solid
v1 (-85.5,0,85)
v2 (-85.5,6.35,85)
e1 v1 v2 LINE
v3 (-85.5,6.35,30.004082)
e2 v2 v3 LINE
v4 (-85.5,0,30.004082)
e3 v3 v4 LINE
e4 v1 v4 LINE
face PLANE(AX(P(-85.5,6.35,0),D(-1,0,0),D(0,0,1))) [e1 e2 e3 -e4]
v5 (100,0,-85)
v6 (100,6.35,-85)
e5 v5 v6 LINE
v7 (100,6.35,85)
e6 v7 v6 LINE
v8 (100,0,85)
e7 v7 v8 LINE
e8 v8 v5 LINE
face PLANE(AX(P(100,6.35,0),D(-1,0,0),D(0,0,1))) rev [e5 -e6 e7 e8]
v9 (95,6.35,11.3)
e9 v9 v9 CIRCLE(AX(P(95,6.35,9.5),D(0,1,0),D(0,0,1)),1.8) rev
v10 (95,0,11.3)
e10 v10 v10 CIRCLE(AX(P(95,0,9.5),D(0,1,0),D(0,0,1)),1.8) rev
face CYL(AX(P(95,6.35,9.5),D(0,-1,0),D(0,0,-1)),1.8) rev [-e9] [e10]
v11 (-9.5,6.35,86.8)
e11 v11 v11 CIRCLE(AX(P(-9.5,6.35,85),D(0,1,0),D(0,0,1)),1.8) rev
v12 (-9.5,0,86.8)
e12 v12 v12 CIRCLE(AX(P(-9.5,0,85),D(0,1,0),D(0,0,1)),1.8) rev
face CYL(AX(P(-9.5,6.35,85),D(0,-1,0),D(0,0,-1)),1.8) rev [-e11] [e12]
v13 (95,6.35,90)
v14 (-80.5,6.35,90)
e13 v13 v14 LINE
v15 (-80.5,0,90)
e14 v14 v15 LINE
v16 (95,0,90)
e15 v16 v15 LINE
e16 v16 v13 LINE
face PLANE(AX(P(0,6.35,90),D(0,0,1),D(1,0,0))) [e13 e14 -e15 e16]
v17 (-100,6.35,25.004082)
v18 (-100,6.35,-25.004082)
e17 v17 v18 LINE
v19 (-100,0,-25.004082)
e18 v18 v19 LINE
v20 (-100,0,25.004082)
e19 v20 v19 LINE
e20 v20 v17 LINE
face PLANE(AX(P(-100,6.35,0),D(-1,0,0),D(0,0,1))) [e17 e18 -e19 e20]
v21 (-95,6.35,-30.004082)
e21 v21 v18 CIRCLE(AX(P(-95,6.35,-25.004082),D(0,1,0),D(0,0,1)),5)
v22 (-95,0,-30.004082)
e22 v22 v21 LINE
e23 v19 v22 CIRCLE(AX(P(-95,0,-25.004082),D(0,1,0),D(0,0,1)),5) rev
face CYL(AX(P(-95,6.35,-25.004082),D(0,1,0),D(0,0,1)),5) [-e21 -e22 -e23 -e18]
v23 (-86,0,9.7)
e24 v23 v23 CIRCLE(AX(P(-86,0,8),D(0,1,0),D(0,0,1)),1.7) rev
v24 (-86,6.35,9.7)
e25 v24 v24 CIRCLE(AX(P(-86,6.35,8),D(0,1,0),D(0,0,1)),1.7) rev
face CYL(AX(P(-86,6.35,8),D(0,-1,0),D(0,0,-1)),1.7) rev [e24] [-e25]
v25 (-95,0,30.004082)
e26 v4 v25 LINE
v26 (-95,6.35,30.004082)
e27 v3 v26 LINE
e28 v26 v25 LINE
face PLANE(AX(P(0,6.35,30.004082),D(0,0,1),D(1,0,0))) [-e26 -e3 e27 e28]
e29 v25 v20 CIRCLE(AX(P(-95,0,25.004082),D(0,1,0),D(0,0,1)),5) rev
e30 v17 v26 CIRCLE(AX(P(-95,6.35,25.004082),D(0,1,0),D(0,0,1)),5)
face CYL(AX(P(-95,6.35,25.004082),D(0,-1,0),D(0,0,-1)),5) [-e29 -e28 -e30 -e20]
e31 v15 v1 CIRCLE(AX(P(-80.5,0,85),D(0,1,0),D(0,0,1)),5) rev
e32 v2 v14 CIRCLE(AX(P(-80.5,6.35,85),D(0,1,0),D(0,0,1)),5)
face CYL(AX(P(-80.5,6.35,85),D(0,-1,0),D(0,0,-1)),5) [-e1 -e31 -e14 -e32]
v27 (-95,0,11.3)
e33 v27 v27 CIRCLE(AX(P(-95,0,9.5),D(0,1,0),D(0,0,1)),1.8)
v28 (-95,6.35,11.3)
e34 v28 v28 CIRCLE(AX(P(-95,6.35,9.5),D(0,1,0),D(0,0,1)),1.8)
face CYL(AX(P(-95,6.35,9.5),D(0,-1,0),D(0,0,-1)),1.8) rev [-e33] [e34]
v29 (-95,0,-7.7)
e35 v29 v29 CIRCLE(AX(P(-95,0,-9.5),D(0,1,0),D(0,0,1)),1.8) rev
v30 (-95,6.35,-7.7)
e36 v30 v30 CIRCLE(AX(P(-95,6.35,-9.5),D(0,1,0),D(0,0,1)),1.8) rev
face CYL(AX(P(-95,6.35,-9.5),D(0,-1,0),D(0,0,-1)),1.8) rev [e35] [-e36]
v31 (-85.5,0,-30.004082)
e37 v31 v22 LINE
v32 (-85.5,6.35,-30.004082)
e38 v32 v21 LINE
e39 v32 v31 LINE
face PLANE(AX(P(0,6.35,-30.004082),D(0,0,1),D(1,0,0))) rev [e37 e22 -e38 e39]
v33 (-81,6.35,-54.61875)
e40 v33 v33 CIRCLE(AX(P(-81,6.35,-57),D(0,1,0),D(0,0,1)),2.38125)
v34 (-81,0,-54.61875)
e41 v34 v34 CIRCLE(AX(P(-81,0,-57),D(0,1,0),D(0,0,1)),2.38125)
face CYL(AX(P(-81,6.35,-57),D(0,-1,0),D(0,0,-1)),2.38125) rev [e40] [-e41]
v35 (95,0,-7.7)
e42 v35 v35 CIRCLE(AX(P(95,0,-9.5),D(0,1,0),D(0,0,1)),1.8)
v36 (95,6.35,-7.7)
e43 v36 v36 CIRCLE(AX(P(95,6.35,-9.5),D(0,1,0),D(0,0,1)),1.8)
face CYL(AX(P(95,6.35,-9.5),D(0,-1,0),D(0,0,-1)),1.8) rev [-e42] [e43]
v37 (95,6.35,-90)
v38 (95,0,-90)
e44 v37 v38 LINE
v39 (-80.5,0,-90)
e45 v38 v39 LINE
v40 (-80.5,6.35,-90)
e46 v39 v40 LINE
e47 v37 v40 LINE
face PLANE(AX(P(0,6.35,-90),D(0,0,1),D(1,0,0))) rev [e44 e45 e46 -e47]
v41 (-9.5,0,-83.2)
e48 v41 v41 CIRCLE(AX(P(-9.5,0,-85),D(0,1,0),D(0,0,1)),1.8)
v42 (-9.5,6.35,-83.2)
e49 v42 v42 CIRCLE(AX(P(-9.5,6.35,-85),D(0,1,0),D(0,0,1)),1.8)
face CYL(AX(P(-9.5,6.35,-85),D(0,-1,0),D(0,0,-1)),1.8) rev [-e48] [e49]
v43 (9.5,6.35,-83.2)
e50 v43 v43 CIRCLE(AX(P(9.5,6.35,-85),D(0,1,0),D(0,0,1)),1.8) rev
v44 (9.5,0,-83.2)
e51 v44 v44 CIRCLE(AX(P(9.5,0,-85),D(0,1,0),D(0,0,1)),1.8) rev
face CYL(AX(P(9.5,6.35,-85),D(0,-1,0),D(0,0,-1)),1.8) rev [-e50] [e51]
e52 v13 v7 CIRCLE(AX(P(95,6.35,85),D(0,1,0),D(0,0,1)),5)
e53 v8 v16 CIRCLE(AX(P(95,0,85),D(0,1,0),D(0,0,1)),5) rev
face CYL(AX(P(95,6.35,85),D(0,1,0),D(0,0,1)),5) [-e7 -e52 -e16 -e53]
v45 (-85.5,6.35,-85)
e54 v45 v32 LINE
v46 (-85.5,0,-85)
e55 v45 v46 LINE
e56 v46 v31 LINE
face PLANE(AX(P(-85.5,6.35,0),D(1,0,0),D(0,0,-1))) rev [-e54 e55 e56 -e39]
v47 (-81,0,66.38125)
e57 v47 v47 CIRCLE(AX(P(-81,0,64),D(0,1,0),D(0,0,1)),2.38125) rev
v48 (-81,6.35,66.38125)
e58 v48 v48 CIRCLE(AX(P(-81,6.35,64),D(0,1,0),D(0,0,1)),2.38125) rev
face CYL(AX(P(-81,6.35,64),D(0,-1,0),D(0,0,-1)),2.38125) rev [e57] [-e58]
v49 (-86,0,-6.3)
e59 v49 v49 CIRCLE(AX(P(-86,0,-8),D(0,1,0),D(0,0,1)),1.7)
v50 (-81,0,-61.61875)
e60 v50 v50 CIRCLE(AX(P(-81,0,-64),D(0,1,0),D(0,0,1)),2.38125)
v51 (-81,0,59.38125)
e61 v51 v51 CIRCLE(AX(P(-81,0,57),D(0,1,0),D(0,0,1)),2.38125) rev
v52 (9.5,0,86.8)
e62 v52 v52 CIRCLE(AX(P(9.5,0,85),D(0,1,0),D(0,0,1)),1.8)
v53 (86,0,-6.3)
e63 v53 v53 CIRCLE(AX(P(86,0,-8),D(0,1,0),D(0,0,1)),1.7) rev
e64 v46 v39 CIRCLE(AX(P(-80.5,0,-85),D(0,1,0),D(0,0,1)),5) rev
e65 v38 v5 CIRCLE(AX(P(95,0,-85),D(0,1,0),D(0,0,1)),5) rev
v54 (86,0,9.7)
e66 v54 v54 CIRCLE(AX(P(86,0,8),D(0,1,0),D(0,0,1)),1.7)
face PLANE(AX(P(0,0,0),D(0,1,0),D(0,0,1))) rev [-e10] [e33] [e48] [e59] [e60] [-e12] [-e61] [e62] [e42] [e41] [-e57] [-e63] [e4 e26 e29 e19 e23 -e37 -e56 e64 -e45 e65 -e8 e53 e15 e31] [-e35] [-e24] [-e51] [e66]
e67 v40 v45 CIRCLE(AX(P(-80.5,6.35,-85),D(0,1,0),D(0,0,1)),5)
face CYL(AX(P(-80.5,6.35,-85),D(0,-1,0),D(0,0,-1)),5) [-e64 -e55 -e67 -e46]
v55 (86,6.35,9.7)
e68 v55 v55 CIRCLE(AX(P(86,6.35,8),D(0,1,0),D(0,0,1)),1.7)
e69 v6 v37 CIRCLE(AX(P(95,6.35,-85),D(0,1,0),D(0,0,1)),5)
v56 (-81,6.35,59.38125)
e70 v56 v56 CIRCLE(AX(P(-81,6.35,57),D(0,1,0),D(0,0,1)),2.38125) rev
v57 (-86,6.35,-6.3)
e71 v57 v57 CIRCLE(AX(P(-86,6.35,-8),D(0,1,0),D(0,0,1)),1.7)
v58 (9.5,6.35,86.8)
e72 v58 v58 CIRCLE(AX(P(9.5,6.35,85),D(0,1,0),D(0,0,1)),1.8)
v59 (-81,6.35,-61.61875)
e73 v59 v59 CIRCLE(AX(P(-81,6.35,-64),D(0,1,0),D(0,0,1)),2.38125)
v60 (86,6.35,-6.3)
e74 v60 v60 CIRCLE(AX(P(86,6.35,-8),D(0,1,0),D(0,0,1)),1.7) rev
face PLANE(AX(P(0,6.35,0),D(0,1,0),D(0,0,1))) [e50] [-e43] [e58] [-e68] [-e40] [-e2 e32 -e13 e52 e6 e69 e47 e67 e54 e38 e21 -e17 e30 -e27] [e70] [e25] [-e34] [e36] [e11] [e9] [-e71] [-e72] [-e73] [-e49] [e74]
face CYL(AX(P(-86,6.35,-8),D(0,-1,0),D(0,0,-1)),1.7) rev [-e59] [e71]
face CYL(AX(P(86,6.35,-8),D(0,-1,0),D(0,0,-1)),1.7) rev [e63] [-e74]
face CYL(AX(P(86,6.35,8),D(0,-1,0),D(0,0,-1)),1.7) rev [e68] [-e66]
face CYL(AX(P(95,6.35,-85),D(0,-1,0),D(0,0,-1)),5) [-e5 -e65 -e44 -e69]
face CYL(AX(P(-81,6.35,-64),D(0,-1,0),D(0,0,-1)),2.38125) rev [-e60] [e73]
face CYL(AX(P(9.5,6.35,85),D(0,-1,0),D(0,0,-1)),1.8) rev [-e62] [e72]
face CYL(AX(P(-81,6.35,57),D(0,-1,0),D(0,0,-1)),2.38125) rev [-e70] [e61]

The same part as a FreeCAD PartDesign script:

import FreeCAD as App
import Part
import Sketcher

V = App.Vector


def edges_at(feature, points):
    """Names of the edges that pass closest to the given points."""
    edges = feature.Shape.Edges
    near = lambda p: min(range(len(edges)), key=lambda i: edges[i].distToShape(Part.Vertex(*p))[0])
    return sorted({f"Edge{near(p) + 1}" for p in points})


def add_polygon(sketch, points):
    """Adds a closed chain of lines whose ends are joined by coincident constraints."""
    first, n = sketch.GeometryCount, len(points)
    for a, b in zip(points, points[1:] + points[:1]):
        sketch.addGeometry(Part.LineSegment(App.Vector(*a, 0), App.Vector(*b, 0)), False)
    for i in range(n):
        sketch.addConstraint(Sketcher.Constraint("Coincident", first + i, 2, first + (i + 1) % n, 1))

doc = App.newDocument("Part")
body = doc.addObject("PartDesign::Body", "Body")

# Sketch on XZ plane
sketch1 = body.newObject("Sketcher::SketchObject", "Sketch")
sketch1.AttachmentSupport = (doc.getObject("XZ_Plane"), [""])
sketch1.MapMode = "FlatFace"
add_polygon(sketch1, [(-85.5, 90), (100, 90), (100, -90), (-85.5, -90), (-85.5, -30.004082), (-100, -30.004082), (-100, 30.004082), (-85.5, 30.004082)])  # lines 0-7
sketch1.addGeometry(Part.Circle(V(-81, 64, 0), V(0, 0, 1), 2.38125), False)  # 8
sketch1.addGeometry(Part.Circle(V(-81, 57, 0), V(0, 0, 1), 2.38125), False)  # 9
sketch1.addGeometry(Part.Circle(V(-9.5, 85, 0), V(0, 0, 1), 1.8), False)  # 10
sketch1.addGeometry(Part.Circle(V(-95, 9.5, 0), V(0, 0, 1), 1.8), False)  # 11
sketch1.addGeometry(Part.Circle(V(-86, 8, 0), V(0, 0, 1), 1.7), False)  # 12
sketch1.addGeometry(Part.Circle(V(9.5, 85, 0), V(0, 0, 1), 1.8), False)  # 13
sketch1.addGeometry(Part.Circle(V(86, 8, 0), V(0, 0, 1), 1.7), False)  # 14
sketch1.addGeometry(Part.Circle(V(95, 9.5, 0), V(0, 0, 1), 1.8), False)  # 15
sketch1.addGeometry(Part.Circle(V(-95, -9.5, 0), V(0, 0, 1), 1.8), False)  # 16
sketch1.addGeometry(Part.Circle(V(-86, -8, 0), V(0, 0, 1), 1.7), False)  # 17
sketch1.addGeometry(Part.Circle(V(-81, -57, 0), V(0, 0, 1), 2.38125), False)  # 18
sketch1.addGeometry(Part.Circle(V(-81, -64, 0), V(0, 0, 1), 2.38125), False)  # 19
sketch1.addGeometry(Part.Circle(V(-9.5, -85, 0), V(0, 0, 1), 1.8), False)  # 20
sketch1.addGeometry(Part.Circle(V(86, -8, 0), V(0, 0, 1), 1.7), False)  # 21
sketch1.addGeometry(Part.Circle(V(95, -9.5, 0), V(0, 0, 1), 1.8), False)  # 22
sketch1.addGeometry(Part.Circle(V(9.5, -85, 0), V(0, 0, 1), 1.8), False)  # 23
sketch1.addConstraint(Sketcher.Constraint("Horizontal", 0))
sketch1.addConstraint(Sketcher.Constraint("Vertical", 1))
sketch1.addConstraint(Sketcher.Constraint("Horizontal", 2))
sketch1.addConstraint(Sketcher.Constraint("Vertical", 3))
sketch1.addConstraint(Sketcher.Constraint("Horizontal", 4))
sketch1.addConstraint(Sketcher.Constraint("Vertical", 5))
sketch1.addConstraint(Sketcher.Constraint("Horizontal", 6))
sketch1.addConstraint(Sketcher.Constraint("Vertical", 7))
sketch1.addConstraint(Sketcher.Constraint("Equal", 8, 9))
sketch1.addConstraint(Sketcher.Constraint("Equal", 10, 11))
sketch1.addConstraint(Sketcher.Constraint("Equal", 11, 13))
sketch1.addConstraint(Sketcher.Constraint("Equal", 12, 14))
sketch1.addConstraint(Sketcher.Constraint("Equal", 13, 15))
sketch1.addConstraint(Sketcher.Constraint("Equal", 15, 16))
sketch1.addConstraint(Sketcher.Constraint("Equal", 14, 17))
sketch1.addConstraint(Sketcher.Constraint("Equal", 9, 18))
sketch1.addConstraint(Sketcher.Constraint("Equal", 18, 19))
sketch1.addConstraint(Sketcher.Constraint("Equal", 16, 20))
sketch1.addConstraint(Sketcher.Constraint("Equal", 17, 21))
sketch1.addConstraint(Sketcher.Constraint("Equal", 20, 22))
sketch1.addConstraint(Sketcher.Constraint("Equal", 22, 23))
sketch1.addConstraint(Sketcher.Constraint("Symmetric", 15, 3, 16, 3, -1, 1))
sketch1.addConstraint(Sketcher.Constraint("Symmetric", 14, 3, 17, 3, -1, 1))
sketch1.addConstraint(Sketcher.Constraint("Symmetric", 13, 3, 20, 3, -1, 1))
sketch1.addConstraint(Sketcher.Constraint("Symmetric", 12, 3, 21, 3, -1, 1))
sketch1.addConstraint(Sketcher.Constraint("Symmetric", 11, 3, 22, 3, -1, 1))
sketch1.addConstraint(Sketcher.Constraint("Symmetric", 10, 3, 23, 3, -1, 1))
sketch1.addConstraint(Sketcher.Constraint("Symmetric", 10, 3, 13, 3, -2))
sketch1.addConstraint(Sketcher.Constraint("Symmetric", 12, 3, 14, 3, -2))
sketch1.addConstraint(Sketcher.Constraint("Symmetric", 11, 3, 15, 3, -2))
sketch1.addConstraint(Sketcher.Constraint("Symmetric", 9, 3, 18, 3, -1))
sketch1.addConstraint(Sketcher.Constraint("Symmetric", 8, 3, 19, 3, -1))
sketch1.addConstraint(Sketcher.Constraint("Symmetric", 3, 2, 6, 2, -1))
sketch1.addConstraint(Sketcher.Constraint("Vertical", 8, 3, 9, 3))
sketch1.addConstraint(Sketcher.Constraint("Equal", 3, 7))
sketch1.addConstraint(Sketcher.Constraint("Diameter", 10, 3.6))
sketch1.addConstraint(Sketcher.Constraint("Diameter", 12, 3.4))
sketch1.addConstraint(Sketcher.Constraint("DistanceY", 1, 2, 1, 1, 180.0))
sketch1.addConstraint(Sketcher.Constraint("DistanceX", 0, 1, 0, 2, 185.5))
sketch1.addConstraint(Sketcher.Constraint("DistanceX", 4, 2, 4, 1, 14.5))
sketch1.addConstraint(Sketcher.Constraint("DistanceX", 8, 3, -1, 1, 81.0))
sketch1.addConstraint(Sketcher.Constraint("DistanceY", -1, 1, 8, 3, 64.0))
sketch1.addConstraint(Sketcher.Constraint("DistanceY", -1, 1, 9, 3, 57.0))
sketch1.addConstraint(Sketcher.Constraint("DistanceY", -1, 1, 10, 3, 85.0))
sketch1.addConstraint(Sketcher.Constraint("DistanceX", 11, 3, -1, 1, 95.0))
sketch1.addConstraint(Sketcher.Constraint("DistanceX", 12, 3, -1, 1, 86.0))
sketch1.addConstraint(Sketcher.Constraint("DistanceY", -1, 1, 12, 3, 8.0))
sketch1.addConstraint(Sketcher.Constraint("DistanceX", -1, 1, 0, 2, 100.0))
sketch1.addConstraint(Sketcher.Constraint("DistanceX", 10, 3, 13, 3, 19.0))
sketch1.addConstraint(Sketcher.Constraint("DistanceY", 16, 3, 11, 3, 19.0))
sketch1.addConstraint(Sketcher.Constraint("Diameter", 8, 4.7625))
sketch1.addConstraint(Sketcher.Constraint("DistanceY", 3, 1, 3, 2, 59.995918))
pad1 = body.newObject("PartDesign::Pad", "Pad")
pad1.Profile = sketch1
pad1.Length = 6.35
pad1.Reversed = True
doc.recompute()

fillet = body.newObject("PartDesign::Fillet", "Fillet")
fillet.Base = (pad1, edges_at(pad1, [
    (-100, 3.175, 30.004),
    (-100, 3.175, -30.004),
    (-85.5, 3.175, -90),
    (100, 3.175, -90),
    (100, 3.175, 90),
    (-85.5, 3.175, 90),
]))
fillet.Radius = 5

doc.recompute()
